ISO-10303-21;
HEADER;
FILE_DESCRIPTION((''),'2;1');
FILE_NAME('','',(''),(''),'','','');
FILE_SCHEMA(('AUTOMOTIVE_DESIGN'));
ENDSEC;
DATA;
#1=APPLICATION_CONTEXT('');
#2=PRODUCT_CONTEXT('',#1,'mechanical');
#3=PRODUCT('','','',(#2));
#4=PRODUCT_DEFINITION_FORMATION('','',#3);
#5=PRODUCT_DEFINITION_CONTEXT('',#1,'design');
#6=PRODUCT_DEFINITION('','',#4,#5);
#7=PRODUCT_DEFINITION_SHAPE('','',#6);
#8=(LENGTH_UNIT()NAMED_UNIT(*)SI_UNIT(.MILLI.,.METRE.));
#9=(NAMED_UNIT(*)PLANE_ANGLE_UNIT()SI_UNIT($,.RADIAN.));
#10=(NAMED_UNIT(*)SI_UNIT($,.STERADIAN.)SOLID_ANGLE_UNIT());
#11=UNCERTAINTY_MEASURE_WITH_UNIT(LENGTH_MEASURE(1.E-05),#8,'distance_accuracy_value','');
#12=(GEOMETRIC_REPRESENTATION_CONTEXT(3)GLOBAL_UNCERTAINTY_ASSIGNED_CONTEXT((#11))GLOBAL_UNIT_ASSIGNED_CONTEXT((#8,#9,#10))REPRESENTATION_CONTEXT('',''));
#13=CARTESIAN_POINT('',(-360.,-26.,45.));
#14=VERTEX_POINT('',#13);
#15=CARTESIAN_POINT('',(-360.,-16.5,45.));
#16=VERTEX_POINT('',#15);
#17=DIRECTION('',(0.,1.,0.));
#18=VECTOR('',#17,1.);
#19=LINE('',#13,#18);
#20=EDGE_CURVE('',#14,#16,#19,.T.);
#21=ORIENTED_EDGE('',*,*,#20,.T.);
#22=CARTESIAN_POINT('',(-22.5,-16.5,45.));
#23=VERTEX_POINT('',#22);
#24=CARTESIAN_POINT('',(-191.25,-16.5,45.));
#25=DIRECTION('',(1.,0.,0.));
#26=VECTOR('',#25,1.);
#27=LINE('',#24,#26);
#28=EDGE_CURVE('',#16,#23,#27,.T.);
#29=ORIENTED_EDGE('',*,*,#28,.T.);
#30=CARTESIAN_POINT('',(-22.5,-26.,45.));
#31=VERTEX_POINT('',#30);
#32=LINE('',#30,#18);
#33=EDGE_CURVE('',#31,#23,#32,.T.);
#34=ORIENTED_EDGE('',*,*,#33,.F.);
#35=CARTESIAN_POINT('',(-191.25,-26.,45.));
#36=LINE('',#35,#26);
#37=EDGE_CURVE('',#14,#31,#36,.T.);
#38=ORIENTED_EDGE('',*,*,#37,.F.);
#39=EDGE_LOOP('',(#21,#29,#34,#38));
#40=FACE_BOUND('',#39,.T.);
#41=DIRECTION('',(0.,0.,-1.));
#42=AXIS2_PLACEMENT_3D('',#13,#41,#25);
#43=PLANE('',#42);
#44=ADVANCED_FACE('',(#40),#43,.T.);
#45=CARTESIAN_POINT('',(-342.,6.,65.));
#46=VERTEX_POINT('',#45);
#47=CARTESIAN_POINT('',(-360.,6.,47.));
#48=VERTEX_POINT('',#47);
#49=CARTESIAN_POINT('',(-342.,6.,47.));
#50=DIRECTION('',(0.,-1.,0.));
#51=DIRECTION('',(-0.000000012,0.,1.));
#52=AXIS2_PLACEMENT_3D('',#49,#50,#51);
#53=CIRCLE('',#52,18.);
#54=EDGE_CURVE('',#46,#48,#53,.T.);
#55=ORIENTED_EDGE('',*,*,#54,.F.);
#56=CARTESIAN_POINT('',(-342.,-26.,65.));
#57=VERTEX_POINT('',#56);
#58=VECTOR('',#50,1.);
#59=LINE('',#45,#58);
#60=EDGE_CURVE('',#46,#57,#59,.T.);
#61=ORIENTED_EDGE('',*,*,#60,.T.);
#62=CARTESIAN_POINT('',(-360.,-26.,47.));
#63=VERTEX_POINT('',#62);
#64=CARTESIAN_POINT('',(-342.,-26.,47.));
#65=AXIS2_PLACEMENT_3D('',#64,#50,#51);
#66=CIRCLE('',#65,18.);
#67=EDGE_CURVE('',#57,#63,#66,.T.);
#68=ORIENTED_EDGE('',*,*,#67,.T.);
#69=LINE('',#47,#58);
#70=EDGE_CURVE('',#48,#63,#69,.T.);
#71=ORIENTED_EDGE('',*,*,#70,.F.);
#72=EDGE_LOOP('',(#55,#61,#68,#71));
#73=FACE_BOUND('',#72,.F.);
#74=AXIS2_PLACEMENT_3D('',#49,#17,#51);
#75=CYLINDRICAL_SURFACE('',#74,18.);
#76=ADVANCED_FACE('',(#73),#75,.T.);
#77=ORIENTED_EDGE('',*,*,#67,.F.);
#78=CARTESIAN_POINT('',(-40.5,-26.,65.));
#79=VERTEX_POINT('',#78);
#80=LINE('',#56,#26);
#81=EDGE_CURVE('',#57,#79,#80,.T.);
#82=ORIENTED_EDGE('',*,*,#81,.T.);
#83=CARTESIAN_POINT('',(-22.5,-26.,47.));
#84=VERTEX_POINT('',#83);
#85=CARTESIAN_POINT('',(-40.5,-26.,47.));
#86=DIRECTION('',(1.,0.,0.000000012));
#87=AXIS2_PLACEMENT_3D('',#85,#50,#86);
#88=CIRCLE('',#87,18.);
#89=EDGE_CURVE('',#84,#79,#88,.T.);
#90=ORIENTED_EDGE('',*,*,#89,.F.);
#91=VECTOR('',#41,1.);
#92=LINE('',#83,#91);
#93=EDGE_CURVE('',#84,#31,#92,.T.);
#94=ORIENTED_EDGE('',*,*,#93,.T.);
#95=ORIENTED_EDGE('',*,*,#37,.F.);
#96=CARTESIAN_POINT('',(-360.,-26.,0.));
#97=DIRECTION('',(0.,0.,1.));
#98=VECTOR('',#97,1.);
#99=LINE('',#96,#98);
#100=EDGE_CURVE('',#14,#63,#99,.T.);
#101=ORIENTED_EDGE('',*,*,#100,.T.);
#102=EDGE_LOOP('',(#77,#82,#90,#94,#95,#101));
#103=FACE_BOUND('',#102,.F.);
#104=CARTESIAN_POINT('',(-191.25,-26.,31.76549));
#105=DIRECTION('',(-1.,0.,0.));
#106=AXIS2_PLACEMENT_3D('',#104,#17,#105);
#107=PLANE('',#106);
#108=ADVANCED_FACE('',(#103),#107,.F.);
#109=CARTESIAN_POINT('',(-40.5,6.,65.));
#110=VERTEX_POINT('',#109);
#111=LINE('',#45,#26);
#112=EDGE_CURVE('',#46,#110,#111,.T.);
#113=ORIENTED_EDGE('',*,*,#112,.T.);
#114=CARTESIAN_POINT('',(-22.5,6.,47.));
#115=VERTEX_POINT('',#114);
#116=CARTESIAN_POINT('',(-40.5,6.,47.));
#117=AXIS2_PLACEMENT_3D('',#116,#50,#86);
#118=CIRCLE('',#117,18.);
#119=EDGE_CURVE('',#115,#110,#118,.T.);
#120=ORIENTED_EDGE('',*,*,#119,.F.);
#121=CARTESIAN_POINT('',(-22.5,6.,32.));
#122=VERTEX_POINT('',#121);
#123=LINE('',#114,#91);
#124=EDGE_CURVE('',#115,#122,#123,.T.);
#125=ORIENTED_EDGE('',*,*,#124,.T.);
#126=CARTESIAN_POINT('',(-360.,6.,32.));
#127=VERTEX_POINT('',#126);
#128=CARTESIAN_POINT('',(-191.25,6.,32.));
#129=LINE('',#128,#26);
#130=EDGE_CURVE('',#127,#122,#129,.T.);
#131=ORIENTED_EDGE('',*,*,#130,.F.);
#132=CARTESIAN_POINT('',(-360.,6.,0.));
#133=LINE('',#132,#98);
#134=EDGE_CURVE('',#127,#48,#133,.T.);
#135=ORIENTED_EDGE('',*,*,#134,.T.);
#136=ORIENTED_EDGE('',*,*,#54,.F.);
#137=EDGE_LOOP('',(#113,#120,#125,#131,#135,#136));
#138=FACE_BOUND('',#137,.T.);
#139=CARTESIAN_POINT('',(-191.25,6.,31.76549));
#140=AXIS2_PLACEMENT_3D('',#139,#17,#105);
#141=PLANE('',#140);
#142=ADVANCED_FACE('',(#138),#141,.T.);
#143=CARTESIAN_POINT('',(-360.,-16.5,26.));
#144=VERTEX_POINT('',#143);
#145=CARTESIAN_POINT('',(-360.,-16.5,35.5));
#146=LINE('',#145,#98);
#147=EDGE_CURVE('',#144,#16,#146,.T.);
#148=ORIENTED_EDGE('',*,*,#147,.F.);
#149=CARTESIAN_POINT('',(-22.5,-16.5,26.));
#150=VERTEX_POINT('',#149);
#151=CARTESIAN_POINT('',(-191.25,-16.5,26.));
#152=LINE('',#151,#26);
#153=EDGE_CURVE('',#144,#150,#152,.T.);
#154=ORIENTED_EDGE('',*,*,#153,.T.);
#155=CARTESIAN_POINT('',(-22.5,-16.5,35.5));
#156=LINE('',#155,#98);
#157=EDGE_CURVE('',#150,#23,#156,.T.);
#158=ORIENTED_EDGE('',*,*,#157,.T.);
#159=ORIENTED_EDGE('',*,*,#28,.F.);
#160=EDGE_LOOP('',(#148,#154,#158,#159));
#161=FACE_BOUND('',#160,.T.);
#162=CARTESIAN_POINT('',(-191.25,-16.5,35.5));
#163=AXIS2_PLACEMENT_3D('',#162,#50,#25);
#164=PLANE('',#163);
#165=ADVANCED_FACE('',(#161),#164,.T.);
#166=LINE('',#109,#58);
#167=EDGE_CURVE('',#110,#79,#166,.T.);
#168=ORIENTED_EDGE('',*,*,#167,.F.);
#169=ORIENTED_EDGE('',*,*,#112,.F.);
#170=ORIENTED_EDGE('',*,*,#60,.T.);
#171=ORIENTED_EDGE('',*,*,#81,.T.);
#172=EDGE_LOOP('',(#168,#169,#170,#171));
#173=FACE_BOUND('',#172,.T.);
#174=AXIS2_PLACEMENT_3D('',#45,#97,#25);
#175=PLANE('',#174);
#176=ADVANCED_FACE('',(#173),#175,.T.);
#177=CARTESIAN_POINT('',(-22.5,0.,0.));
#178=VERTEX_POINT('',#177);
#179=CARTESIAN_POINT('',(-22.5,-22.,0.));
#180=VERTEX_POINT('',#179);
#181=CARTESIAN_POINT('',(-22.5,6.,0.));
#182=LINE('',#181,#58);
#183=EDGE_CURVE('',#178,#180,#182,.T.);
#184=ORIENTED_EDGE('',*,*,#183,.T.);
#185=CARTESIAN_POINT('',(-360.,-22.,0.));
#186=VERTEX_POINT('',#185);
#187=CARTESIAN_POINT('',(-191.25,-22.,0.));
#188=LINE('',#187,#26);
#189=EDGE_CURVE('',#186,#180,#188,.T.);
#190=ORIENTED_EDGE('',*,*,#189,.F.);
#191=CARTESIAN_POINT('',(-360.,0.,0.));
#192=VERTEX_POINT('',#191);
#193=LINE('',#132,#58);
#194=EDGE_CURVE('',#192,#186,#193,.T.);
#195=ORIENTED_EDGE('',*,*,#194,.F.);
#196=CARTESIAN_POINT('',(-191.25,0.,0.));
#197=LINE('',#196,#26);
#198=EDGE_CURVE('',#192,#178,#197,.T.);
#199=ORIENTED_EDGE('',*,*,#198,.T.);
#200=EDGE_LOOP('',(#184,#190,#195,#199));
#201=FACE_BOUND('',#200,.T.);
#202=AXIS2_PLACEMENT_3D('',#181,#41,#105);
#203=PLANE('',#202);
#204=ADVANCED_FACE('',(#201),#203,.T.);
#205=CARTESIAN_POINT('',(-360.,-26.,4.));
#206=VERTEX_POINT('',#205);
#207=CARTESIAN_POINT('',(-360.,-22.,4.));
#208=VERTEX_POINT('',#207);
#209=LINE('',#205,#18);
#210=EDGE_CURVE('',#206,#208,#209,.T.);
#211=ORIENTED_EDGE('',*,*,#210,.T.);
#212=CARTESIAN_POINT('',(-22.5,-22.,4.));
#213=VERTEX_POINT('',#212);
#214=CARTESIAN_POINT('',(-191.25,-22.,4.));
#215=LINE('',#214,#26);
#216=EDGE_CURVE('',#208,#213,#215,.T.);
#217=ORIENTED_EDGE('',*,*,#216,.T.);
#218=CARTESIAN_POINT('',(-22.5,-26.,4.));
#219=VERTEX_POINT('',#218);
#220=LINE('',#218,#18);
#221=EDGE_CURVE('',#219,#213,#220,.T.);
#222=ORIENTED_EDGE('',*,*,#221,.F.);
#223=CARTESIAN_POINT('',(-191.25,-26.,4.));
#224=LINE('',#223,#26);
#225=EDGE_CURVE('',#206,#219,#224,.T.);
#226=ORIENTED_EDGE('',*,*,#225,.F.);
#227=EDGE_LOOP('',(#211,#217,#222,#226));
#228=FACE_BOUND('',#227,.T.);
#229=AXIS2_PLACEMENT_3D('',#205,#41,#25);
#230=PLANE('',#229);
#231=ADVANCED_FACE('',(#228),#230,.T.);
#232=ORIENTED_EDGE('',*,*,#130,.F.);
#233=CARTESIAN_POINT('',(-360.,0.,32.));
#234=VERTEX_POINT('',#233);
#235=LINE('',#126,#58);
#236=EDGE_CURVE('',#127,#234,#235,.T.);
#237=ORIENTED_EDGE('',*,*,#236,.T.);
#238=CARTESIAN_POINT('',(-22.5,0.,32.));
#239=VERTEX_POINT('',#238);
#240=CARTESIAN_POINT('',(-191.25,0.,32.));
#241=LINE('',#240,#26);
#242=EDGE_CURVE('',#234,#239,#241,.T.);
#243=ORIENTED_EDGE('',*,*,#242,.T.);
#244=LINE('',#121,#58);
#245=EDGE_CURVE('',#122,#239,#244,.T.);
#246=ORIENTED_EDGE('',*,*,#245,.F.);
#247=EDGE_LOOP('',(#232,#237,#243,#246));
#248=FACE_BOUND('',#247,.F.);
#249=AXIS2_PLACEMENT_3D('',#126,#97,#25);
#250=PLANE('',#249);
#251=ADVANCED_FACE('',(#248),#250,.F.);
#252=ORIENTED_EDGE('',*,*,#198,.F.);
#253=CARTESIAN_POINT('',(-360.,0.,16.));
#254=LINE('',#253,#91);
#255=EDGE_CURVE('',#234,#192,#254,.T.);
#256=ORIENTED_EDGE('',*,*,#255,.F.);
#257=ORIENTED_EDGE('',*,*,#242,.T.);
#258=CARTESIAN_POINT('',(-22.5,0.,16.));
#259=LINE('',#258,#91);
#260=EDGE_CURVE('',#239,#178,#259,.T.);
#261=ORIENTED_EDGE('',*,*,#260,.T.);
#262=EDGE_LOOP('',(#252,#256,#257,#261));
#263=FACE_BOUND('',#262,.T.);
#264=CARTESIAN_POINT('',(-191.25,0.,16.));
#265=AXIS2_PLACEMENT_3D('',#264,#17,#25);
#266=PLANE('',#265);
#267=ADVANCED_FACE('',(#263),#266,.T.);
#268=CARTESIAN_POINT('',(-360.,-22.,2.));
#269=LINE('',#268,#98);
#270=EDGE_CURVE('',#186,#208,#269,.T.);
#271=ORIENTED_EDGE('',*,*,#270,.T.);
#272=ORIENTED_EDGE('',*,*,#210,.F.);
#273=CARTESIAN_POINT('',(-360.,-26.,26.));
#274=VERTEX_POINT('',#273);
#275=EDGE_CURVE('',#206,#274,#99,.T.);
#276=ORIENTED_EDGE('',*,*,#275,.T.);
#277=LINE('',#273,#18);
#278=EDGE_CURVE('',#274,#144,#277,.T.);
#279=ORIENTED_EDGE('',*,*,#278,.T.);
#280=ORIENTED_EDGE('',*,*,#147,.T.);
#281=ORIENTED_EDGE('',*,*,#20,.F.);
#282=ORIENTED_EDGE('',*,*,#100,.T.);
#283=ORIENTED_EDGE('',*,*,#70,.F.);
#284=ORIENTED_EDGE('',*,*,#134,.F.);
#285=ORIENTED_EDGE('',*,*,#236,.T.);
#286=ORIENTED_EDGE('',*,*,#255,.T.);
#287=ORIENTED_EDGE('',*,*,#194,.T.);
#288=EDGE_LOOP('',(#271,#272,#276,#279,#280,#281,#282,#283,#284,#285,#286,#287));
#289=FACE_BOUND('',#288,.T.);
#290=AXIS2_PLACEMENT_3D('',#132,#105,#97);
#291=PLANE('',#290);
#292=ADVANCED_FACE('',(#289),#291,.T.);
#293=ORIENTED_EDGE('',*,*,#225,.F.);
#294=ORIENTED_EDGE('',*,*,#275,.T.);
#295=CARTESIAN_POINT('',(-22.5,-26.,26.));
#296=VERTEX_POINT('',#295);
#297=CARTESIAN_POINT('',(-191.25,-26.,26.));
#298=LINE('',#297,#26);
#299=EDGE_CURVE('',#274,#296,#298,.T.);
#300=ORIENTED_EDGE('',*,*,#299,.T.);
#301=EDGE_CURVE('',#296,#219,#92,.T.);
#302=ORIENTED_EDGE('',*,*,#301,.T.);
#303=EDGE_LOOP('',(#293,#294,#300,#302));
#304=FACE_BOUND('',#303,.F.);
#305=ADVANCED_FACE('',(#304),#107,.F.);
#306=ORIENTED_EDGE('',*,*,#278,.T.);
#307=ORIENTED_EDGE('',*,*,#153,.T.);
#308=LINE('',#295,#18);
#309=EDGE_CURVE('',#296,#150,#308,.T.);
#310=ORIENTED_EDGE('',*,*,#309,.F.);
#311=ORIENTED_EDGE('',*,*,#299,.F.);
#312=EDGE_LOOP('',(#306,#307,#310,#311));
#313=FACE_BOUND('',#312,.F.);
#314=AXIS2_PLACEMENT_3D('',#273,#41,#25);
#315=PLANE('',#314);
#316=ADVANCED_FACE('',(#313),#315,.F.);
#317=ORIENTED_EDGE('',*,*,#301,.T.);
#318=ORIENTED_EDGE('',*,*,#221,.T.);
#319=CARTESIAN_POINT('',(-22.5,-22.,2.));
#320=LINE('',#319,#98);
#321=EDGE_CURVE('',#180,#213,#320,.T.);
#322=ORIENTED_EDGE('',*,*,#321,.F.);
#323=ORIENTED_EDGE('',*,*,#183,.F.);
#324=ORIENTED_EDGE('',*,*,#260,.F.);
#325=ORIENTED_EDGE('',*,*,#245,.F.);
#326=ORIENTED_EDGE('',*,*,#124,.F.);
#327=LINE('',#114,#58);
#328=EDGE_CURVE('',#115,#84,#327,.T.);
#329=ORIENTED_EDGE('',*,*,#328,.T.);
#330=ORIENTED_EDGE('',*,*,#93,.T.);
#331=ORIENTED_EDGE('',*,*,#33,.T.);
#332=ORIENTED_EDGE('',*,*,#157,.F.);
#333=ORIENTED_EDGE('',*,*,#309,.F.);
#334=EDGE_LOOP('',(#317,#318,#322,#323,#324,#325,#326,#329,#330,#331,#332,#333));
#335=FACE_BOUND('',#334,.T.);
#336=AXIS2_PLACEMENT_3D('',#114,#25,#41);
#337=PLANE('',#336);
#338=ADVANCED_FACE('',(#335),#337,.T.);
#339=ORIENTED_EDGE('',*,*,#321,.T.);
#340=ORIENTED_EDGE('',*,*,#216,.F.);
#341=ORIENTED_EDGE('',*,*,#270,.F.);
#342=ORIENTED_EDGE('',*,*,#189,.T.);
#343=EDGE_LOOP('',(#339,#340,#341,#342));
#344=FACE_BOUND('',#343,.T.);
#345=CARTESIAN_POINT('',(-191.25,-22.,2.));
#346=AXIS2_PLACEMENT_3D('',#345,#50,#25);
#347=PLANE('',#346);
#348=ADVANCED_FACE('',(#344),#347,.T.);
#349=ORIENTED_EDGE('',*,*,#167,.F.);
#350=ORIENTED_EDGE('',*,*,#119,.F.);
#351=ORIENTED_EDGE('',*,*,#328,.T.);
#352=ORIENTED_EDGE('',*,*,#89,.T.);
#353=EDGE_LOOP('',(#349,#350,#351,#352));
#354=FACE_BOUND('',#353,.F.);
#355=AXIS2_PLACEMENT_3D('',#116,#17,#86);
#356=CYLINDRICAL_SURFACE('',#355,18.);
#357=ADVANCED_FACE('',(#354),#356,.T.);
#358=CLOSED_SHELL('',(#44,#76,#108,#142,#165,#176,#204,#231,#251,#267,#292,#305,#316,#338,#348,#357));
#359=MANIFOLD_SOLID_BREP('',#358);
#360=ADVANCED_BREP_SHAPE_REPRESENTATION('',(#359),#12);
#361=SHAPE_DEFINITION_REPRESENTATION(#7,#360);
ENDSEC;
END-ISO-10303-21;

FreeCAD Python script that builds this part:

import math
import FreeCAD as App
import Part
import Sketcher
from FreeCAD import Vector


def add_polygon(sketch, points):
    """Adds a closed chain of lines whose ends are joined by coincident constraints."""
    first, n = sketch.GeometryCount, len(points)
    for a, b in zip(points, points[1:] + points[:1]):
        sketch.addGeometry(Part.LineSegment(App.Vector(*a, 0), App.Vector(*b, 0)), False)
    for i in range(n):
        sketch.addConstraint(Sketcher.Constraint("Coincident", first + i, 2, first + (i + 1) % n, 1))

doc = App.newDocument("Part")
body = doc.addObject("PartDesign::Body", "Body")

sketch1 = body.newObject("Sketcher::SketchObject", "Sketch")
sketch1.AttachmentSupport = (doc.getObject("XY_Plane"), [""])
sketch1.MapMode = "FlatFace"
sketch1.addGeometry([
    Part.LineSegment(Vector(319.5, 65, 0), Vector(18, 65, 0)),
    Part.ArcOfCircle(Part.Circle(Vector(18, 47, 0), Vector(0, 0, 1), 18), math.radians(90.000001), math.radians(179.999999)),
    Part.LineSegment(Vector(0, 47, 0), Vector(0, 0, 0)),
    Part.LineSegment(Vector(0, 0, 0), Vector(337.5, 0, 0)),
    Part.LineSegment(Vector(337.5, 0, 0), Vector(337.5, 47, 0)),
    Part.ArcOfCircle(Part.Circle(Vector(319.5, 47, 0), Vector(0, 0, 1), 18), math.radians(0.000001), math.radians(89.999999)),
], False)
sketch1.addConstraint([
    Sketcher.Constraint("Tangent", 0, 2, 1, 1),
    Sketcher.Constraint("Tangent", 1, 2, 2, 1),
    Sketcher.Constraint("Coincident", 2, 2, 3, 1),
    Sketcher.Constraint("Coincident", 3, 2, 4, 1),
    Sketcher.Constraint("Tangent", 4, 2, 5, 1),
    Sketcher.Constraint("Tangent", 5, 2, 0, 1),
    Sketcher.Constraint("Horizontal", 0),
    Sketcher.Constraint("Vertical", 2),
    Sketcher.Constraint("Horizontal", 3),
    Sketcher.Constraint("Vertical", 4),
    Sketcher.Constraint("Coincident", 2, 2, -1, 1),
    Sketcher.Constraint("Equal", 1, 5),
    Sketcher.Constraint("Radius", 1, 18.0),
    Sketcher.Constraint("DistanceY", 2, 2, 2, 1, 47.0),
    Sketcher.Constraint("DistanceX", 0, 2, 0, 1, 301.5),
])
pad1 = body.newObject("PartDesign::Pad", "Pad")
pad1.Profile = sketch1
pad1.Length = 32

sketch2 = body.newObject("Sketcher::SketchObject", "Sketch001")
sketch2.AttachmentSupport = (doc.getObject("XY_Plane"), [""])
sketch2.MapMode = "FlatFace"
sketch2.AttachmentOffset = App.Placement(Vector(0, 0, 32), App.Rotation())
add_polygon(sketch2, [(0, 45), (0, 26), (337.5, 26), (337.5, 45)])
sketch2.addConstraint([
    Sketcher.Constraint("Vertical", 0),
    Sketcher.Constraint("Horizontal", 1),
    Sketcher.Constraint("Vertical", 2),
    Sketcher.Constraint("Horizontal", 3),
    Sketcher.Constraint("PointOnObject", 0, 2, -2),
    Sketcher.Constraint("DistanceY", 0, 2, 0, 1, 19.0),
    Sketcher.Constraint("DistanceX", 1, 1, 1, 2, 337.5),
    Sketcher.Constraint("DistanceY", -1, 1, 0, 2, 26.0),
])
pocket1 = body.newObject("PartDesign::Pocket", "Pocket")
pocket1.Profile = sketch2
pocket1.Length = 9.5

sketch3 = body.newObject("Sketcher::SketchObject", "Sketch002")
sketch3.AttachmentSupport = (doc.getObject("XY_Plane"), [""])
sketch3.MapMode = "FlatFace"
sketch3.AttachmentOffset = App.Placement(Vector(0, 0, 32), App.Rotation())
add_polygon(sketch3, [(0, 4), (0, 0), (337.5, 0), (337.5, 4)])
sketch3.addConstraint([
    Sketcher.Constraint("Vertical", 0),
    Sketcher.Constraint("Horizontal", 1),
    Sketcher.Constraint("Vertical", 2),
    Sketcher.Constraint("Horizontal", 3),
    Sketcher.Constraint("Coincident", 0, 2, -1, 1),
    Sketcher.Constraint("DistanceY", 0, 2, 0, 1, 4.0),
    Sketcher.Constraint("DistanceX", 1, 1, 1, 2, 337.5),
])
pocket2 = body.newObject("PartDesign::Pocket", "Pocket001")
pocket2.Profile = sketch3
pocket2.Length = 4

sketch4 = body.newObject("Sketcher::SketchObject", "Sketch003")
sketch4.AttachmentSupport = (doc.getObject("XY_Plane"), [""])
sketch4.MapMode = "FlatFace"
add_polygon(sketch4, [(0, 0), (0, 32), (337.5, 32), (337.5, 0)])
sketch4.addConstraint([
    Sketcher.Constraint("Vertical", 0),
    Sketcher.Constraint("Horizontal", 1),
    Sketcher.Constraint("Vertical", 2),
    Sketcher.Constraint("Horizontal", 3),
    Sketcher.Constraint("Coincident", 3, 2, -1, 1),
    Sketcher.Constraint("DistanceY", 0, 1, 0, 2, 32.0),
    Sketcher.Constraint("DistanceX", 1, 1, 1, 2, 337.5),
])
pocket3 = body.newObject("PartDesign::Pocket", "Pocket002")
pocket3.Profile = sketch4
pocket3.Length = 6
pocket3.Reversed = True
body2 = doc.addObject("PartDesign::Body", "Body001")
doc.recompute()

body.Placement = App.Placement(Vector(22.5, 6, 0), App.Rotation(Vector(1, 0, 0), 90))
boolean = body2.newObject("PartDesign::Boolean", "Boolean")
boolean.Type = "Fuse"
boolean.addObjects([body])
body3 = doc.addObject("PartDesign::Body", "Body002")
doc.recompute()

body2.Placement = App.Placement(Vector(-382.5, 0, 0), App.Rotation(Vector(0, 0, 1), 0))
boolean2 = body3.newObject("PartDesign::Boolean", "Boolean001")
boolean2.Type = "Fuse"
boolean2.addObjects([body2])

doc.recompute()
